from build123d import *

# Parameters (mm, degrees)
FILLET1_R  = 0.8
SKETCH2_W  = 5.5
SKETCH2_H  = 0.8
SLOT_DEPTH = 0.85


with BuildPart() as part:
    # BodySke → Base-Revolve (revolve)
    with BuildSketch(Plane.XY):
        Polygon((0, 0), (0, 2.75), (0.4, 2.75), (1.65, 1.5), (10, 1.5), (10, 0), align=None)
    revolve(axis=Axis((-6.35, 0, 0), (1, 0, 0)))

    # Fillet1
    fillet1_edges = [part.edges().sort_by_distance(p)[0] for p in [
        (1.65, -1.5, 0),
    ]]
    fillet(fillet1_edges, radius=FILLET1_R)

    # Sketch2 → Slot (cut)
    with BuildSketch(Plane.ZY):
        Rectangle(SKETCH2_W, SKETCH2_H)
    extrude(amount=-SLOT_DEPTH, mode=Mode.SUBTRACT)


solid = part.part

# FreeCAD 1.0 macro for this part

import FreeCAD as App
import Part
import Sketcher

V = App.Vector
Q = App.Units.Quantity


def edges_at(feature, points):
    """Names of the edges that pass closest to the given points."""
    edges = feature.Shape.Edges
    near = lambda p: min(range(len(edges)), key=lambda i: edges[i].distToShape(Part.Vertex(*p))[0])
    return sorted({f"Edge{near(p) + 1}" for p in points})

doc = App.newDocument("Part")
body = doc.addObject("PartDesign::Body", "Body")

sketch1 = body.newObject("Sketcher::SketchObject", "Sketch")
sketch1.AttachmentSupport = (doc.getObject("XY_Plane"), [""])
sketch1.MapMode = "FlatFace"
sketch1.addGeometry(Part.LineSegment(V(0, 2.75, 0), V(0, 0, 0)), False)
sketch1.addGeometry(Part.LineSegment(V(0, 0, 0), V(10, 0, 0)), False)
sketch1.addGeometry(Part.LineSegment(V(10, 0, 0), V(10, 1.5, 0)), False)
sketch1.addGeometry(Part.LineSegment(V(10, 1.5, 0), V(1.65, 1.5, 0)), False)
sketch1.addGeometry(Part.LineSegment(V(1.65, 1.5, 0), V(0.4, 2.75, 0)), False)
sketch1.addGeometry(Part.LineSegment(V(0.4, 2.75, 0), V(0, 2.75, 0)), False)
sketch1.addConstraint(Sketcher.Constraint("Coincident", 0, 2, 1, 1))
sketch1.addConstraint(Sketcher.Constraint("Coincident", 1, 2, 2, 1))
sketch1.addConstraint(Sketcher.Constraint("Coincident", 2, 2, 3, 1))
sketch1.addConstraint(Sketcher.Constraint("Coincident", 3, 2, 4, 1))
sketch1.addConstraint(Sketcher.Constraint("Coincident", 4, 2, 5, 1))
sketch1.addConstraint(Sketcher.Constraint("Coincident", 5, 2, 0, 1))
sketch1.addConstraint(Sketcher.Constraint("Vertical", 0))
sketch1.addConstraint(Sketcher.Constraint("Horizontal", 1))
sketch1.addConstraint(Sketcher.Constraint("Vertical", 2))
sketch1.addConstraint(Sketcher.Constraint("Horizontal", 3))
sketch1.addConstraint(Sketcher.Constraint("Horizontal", 5))
sketch1.addConstraint(Sketcher.Constraint("Coincident", 0, 2, -1, 1))
sketch1.addConstraint(Sketcher.Constraint("DistanceX", 1, 1, 1, 2, 10.0))
sketch1.addConstraint(Sketcher.Constraint("Angle", 4, Q("135 deg")))
sketch1.addConstraint(Sketcher.Constraint("DistanceX", 5, 2, 5, 1, 0.4))
sketch1.addConstraint(Sketcher.Constraint("DistanceY", 2, 1, 2, 2, 1.5))
sketch1.addConstraint(Sketcher.Constraint("DistanceX", 3, 2, 3, 1, 8.35))
revolution = body.newObject("PartDesign::Revolution", "Revolution")
revolution.Profile = sketch1
revolution.ReferenceAxis = (sketch1, ["H_Axis"])
revolution.Angle = 360
doc.recompute()

fillet = body.newObject("PartDesign::Fillet", "Fillet")
fillet.Base = (revolution, edges_at(revolution, [(1.65, -1.5, 0)]))
fillet.Radius = 0.8

sketch2 = body.newObject("Sketcher::SketchObject", "Sketch001")
sketch2.AttachmentSupport = (doc.getObject("YZ_Plane"), [""])
sketch2.MapMode = "FlatFace"
sketch2.addGeometry(Part.LineSegment(V(0.4, -2.75, 0), V(-0.4, -2.75, 0)), False)
sketch2.addGeometry(Part.LineSegment(V(-0.4, -2.75, 0), V(-0.4, 2.75, 0)), False)
sketch2.addGeometry(Part.LineSegment(V(-0.4, 2.75, 0), V(0.4, 2.75, 0)), False)
sketch2.addGeometry(Part.LineSegment(V(0.4, 2.75, 0), V(0.4, -2.75, 0)), False)
sketch2.addConstraint(Sketcher.Constraint("Coincident", 0, 2, 1, 1))
sketch2.addConstraint(Sketcher.Constraint("Coincident", 1, 2, 2, 1))
sketch2.addConstraint(Sketcher.Constraint("Coincident", 2, 2, 3, 1))
sketch2.addConstraint(Sketcher.Constraint("Coincident", 3, 2, 0, 1))
sketch2.addConstraint(Sketcher.Constraint("Horizontal", 0))
sketch2.addConstraint(Sketcher.Constraint("Vertical", 1))
sketch2.addConstraint(Sketcher.Constraint("Horizontal", 2))
sketch2.addConstraint(Sketcher.Constraint("Vertical", 3))
sketch2.addConstraint(Sketcher.Constraint("Symmetric", 0, 2, 2, 2, -1, 1))
sketch2.addConstraint(Sketcher.Constraint("DistanceX", 0, 2, 0, 1, 0.8))
sketch2.addConstraint(Sketcher.Constraint("DistanceY", 1, 1, 1, 2, 5.5))
pocket1 = body.newObject("PartDesign::Pocket", "Pocket")
pocket1.Profile = sketch2
pocket1.Length = 0.85
pocket1.Reversed = True

doc.recompute()
